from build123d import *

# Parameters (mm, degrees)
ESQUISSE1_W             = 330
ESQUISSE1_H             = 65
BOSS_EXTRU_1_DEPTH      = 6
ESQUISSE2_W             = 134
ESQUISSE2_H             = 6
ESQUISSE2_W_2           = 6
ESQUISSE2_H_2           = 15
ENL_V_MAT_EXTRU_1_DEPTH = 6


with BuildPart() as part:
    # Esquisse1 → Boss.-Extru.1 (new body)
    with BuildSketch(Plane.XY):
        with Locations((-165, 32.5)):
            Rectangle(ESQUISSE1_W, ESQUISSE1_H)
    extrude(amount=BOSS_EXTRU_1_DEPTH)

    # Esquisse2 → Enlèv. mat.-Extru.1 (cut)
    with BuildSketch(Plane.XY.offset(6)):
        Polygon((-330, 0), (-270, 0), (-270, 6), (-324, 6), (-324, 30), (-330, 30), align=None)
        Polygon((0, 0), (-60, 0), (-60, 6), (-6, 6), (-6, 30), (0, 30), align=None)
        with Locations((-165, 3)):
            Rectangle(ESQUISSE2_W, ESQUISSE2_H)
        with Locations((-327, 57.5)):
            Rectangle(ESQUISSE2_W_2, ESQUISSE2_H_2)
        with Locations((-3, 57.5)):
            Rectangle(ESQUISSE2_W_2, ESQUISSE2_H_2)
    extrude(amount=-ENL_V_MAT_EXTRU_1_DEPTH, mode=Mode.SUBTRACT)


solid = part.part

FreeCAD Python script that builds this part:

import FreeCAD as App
import Part
import Sketcher
from FreeCAD import Vector
Q = App.Units.Quantity

doc = App.newDocument("Part")
params = doc.addObject("Spreadsheet::Sheet", "Params")
for row, (alias, value) in enumerate([
    ("sketch1_width", "330 mm"),
    ("sketch1_height", "65 mm"),
    ("pad1_length", "6 mm"),
    ("sketch2_width", "60 mm"),
    ("sketch2_width2", "54 mm"),
    ("sketch2_width3", "134 mm"),
    ("sketch2_height", "24 mm"),
    ("sketch2_height2", "15 mm"),
    ("pocket1_length", "6 mm"),
], start=1):
    params.set(f"A{row}", alias)
    params.set(f"B{row}", "=" + value)
    params.setAlias(f"B{row}", alias)

body = doc.addObject("PartDesign::Body", "Body")

sketch1 = body.newObject("Sketcher::SketchObject", "Sketch")
sketch1.AttachmentSupport = (doc.getObject("XY_Plane"), [""])
sketch1.MapMode = "FlatFace"
sketch1.addGeometry(Part.LineSegment(Vector(-330, 65, 0), Vector(-330, 0, 0)), False)
sketch1.addGeometry(Part.LineSegment(Vector(-330, 0, 0), Vector(0, 0, 0)), False)
sketch1.addGeometry(Part.LineSegment(Vector(0, 0, 0), Vector(0, 65, 0)), False)
sketch1.addGeometry(Part.LineSegment(Vector(0, 65, 0), Vector(-330, 65, 0)), False)
sketch1.addConstraint(Sketcher.Constraint("Coincident", 0, 2, 1, 1))
sketch1.addConstraint(Sketcher.Constraint("Coincident", 1, 2, 2, 1))
sketch1.addConstraint(Sketcher.Constraint("Coincident", 2, 2, 3, 1))
sketch1.addConstraint(Sketcher.Constraint("Coincident", 3, 2, 0, 1))
sketch1.addConstraint(Sketcher.Constraint("Vertical", 0))
sketch1.addConstraint(Sketcher.Constraint("Horizontal", 1))
sketch1.addConstraint(Sketcher.Constraint("Vertical", 2))
sketch1.addConstraint(Sketcher.Constraint("Horizontal", 3))
sketch1.addConstraint(Sketcher.Constraint("Coincident", 1, 2, -1, 1))
sketch1.addConstraint(Sketcher.Constraint("DistanceX", 1, 1, 1, 2, Q("330 mm")))
sketch1.addConstraint(Sketcher.Constraint("DistanceY", 0, 2, 0, 1, Q("65 mm")))
sketch1.setExpression("Constraints[9]", "Params.sketch1_width")
sketch1.setExpression("Constraints[10]", "Params.sketch1_height")
pad1 = body.newObject("PartDesign::Pad", "Pad")
pad1.Profile = sketch1
pad1.setExpression("Length", "Params.pad1_length")

sketch2 = body.newObject("Sketcher::SketchObject", "Sketch001")
sketch2.AttachmentSupport = (doc.getObject("XY_Plane"), [""])
sketch2.MapMode = "FlatFace"
sketch2.AttachmentOffset = App.Placement(Vector(0, 0, 6), App.Rotation())
sketch2.addGeometry(Part.LineSegment(Vector(-330, 0, 0), Vector(-270, 0, 0)), False)
sketch2.addGeometry(Part.LineSegment(Vector(-270, 0, 0), Vector(-270, 6, 0)), False)
sketch2.addGeometry(Part.LineSegment(Vector(-270, 6, 0), Vector(-324, 6, 0)), False)
sketch2.addGeometry(Part.LineSegment(Vector(-324, 6, 0), Vector(-324, 30, 0)), False)
sketch2.addGeometry(Part.LineSegment(Vector(-324, 30, 0), Vector(-330, 30, 0)), False)
sketch2.addGeometry(Part.LineSegment(Vector(-330, 30, 0), Vector(-330, 0, 0)), False)
sketch2.addGeometry(Part.LineSegment(Vector(-60, 0, 0), Vector(0, 0, 0)), False)
sketch2.addGeometry(Part.LineSegment(Vector(0, 0, 0), Vector(0, 30, 0)), False)
sketch2.addGeometry(Part.LineSegment(Vector(0, 30, 0), Vector(-6, 30, 0)), False)
sketch2.addGeometry(Part.LineSegment(Vector(-6, 30, 0), Vector(-6, 6, 0)), False)
sketch2.addGeometry(Part.LineSegment(Vector(-6, 6, 0), Vector(-60, 6, 0)), False)
sketch2.addGeometry(Part.LineSegment(Vector(-60, 6, 0), Vector(-60, 0, 0)), False)
sketch2.addGeometry(Part.LineSegment(Vector(-232, 6, 0), Vector(-232, 0, 0)), False)
sketch2.addGeometry(Part.LineSegment(Vector(-232, 0, 0), Vector(-98, 0, 0)), False)
sketch2.addGeometry(Part.LineSegment(Vector(-98, 0, 0), Vector(-98, 6, 0)), False)
sketch2.addGeometry(Part.LineSegment(Vector(-98, 6, 0), Vector(-232, 6, 0)), False)
sketch2.addGeometry(Part.LineSegment(Vector(-330, 65, 0), Vector(-330, 50, 0)), False)
sketch2.addGeometry(Part.LineSegment(Vector(-330, 50, 0), Vector(-324, 50, 0)), False)
sketch2.addGeometry(Part.LineSegment(Vector(-324, 50, 0), Vector(-324, 65, 0)), False)
sketch2.addGeometry(Part.LineSegment(Vector(-324, 65, 0), Vector(-330, 65, 0)), False)
sketch2.addGeometry(Part.LineSegment(Vector(-6, 65, 0), Vector(-6, 50, 0)), False)
sketch2.addGeometry(Part.LineSegment(Vector(-6, 50, 0), Vector(0, 50, 0)), False)
sketch2.addGeometry(Part.LineSegment(Vector(0, 50, 0), Vector(0, 65, 0)), False)
sketch2.addGeometry(Part.LineSegment(Vector(0, 65, 0), Vector(-6, 65, 0)), False)
sketch2.addConstraint(Sketcher.Constraint("Coincident", 0, 2, 1, 1))
sketch2.addConstraint(Sketcher.Constraint("Coincident", 1, 2, 2, 1))
sketch2.addConstraint(Sketcher.Constraint("Coincident", 2, 2, 3, 1))
sketch2.addConstraint(Sketcher.Constraint("Coincident", 3, 2, 4, 1))
sketch2.addConstraint(Sketcher.Constraint("Coincident", 4, 2, 5, 1))
sketch2.addConstraint(Sketcher.Constraint("Coincident", 5, 2, 0, 1))
sketch2.addConstraint(Sketcher.Constraint("Coincident", 6, 2, 7, 1))
sketch2.addConstraint(Sketcher.Constraint("Coincident", 7, 2, 8, 1))
sketch2.addConstraint(Sketcher.Constraint("Coincident", 8, 2, 9, 1))
sketch2.addConstraint(Sketcher.Constraint("Coincident", 9, 2, 10, 1))
sketch2.addConstraint(Sketcher.Constraint("Coincident", 10, 2, 11, 1))
sketch2.addConstraint(Sketcher.Constraint("Coincident", 11, 2, 6, 1))
sketch2.addConstraint(Sketcher.Constraint("Coincident", 12, 2, 13, 1))
sketch2.addConstraint(Sketcher.Constraint("Coincident", 13, 2, 14, 1))
sketch2.addConstraint(Sketcher.Constraint("Coincident", 14, 2, 15, 1))
sketch2.addConstraint(Sketcher.Constraint("Coincident", 15, 2, 12, 1))
sketch2.addConstraint(Sketcher.Constraint("Coincident", 16, 2, 17, 1))
sketch2.addConstraint(Sketcher.Constraint("Coincident", 17, 2, 18, 1))
sketch2.addConstraint(Sketcher.Constraint("Coincident", 18, 2, 19, 1))
sketch2.addConstraint(Sketcher.Constraint("Coincident", 19, 2, 16, 1))
sketch2.addConstraint(Sketcher.Constraint("Coincident", 20, 2, 21, 1))
sketch2.addConstraint(Sketcher.Constraint("Coincident", 21, 2, 22, 1))
sketch2.addConstraint(Sketcher.Constraint("Coincident", 22, 2, 23, 1))
sketch2.addConstraint(Sketcher.Constraint("Coincident", 23, 2, 20, 1))
sketch2.addConstraint(Sketcher.Constraint("Horizontal", 0))
sketch2.addConstraint(Sketcher.Constraint("Vertical", 1))
sketch2.addConstraint(Sketcher.Constraint("Horizontal", 2))
sketch2.addConstraint(Sketcher.Constraint("Vertical", 3))
sketch2.addConstraint(Sketcher.Constraint("Horizontal", 4))
sketch2.addConstraint(Sketcher.Constraint("Vertical", 5))
sketch2.addConstraint(Sketcher.Constraint("Horizontal", 6))
sketch2.addConstraint(Sketcher.Constraint("Vertical", 7))
sketch2.addConstraint(Sketcher.Constraint("Horizontal", 8))
sketch2.addConstraint(Sketcher.Constraint("Vertical", 9))
sketch2.addConstraint(Sketcher.Constraint("Horizontal", 10))
sketch2.addConstraint(Sketcher.Constraint("Vertical", 11))
sketch2.addConstraint(Sketcher.Constraint("Vertical", 12))
sketch2.addConstraint(Sketcher.Constraint("Horizontal", 13))
sketch2.addConstraint(Sketcher.Constraint("Vertical", 14))
sketch2.addConstraint(Sketcher.Constraint("Horizontal", 15))
sketch2.addConstraint(Sketcher.Constraint("Vertical", 16))
sketch2.addConstraint(Sketcher.Constraint("Horizontal", 17))
sketch2.addConstraint(Sketcher.Constraint("Vertical", 18))
sketch2.addConstraint(Sketcher.Constraint("Horizontal", 19))
sketch2.addConstraint(Sketcher.Constraint("Vertical", 20))
sketch2.addConstraint(Sketcher.Constraint("Horizontal", 21))
sketch2.addConstraint(Sketcher.Constraint("Vertical", 22))
sketch2.addConstraint(Sketcher.Constraint("Horizontal", 23))
sketch2.addConstraint(Sketcher.Constraint("Coincident", 6, 2, -1, 1))
sketch2.addConstraint(Sketcher.Constraint("PointOnObject", 0, 2, -1))
sketch2.addConstraint(Sketcher.Constraint("PointOnObject", 12, 2, -1))
sketch2.addConstraint(Sketcher.Constraint("PointOnObject", 21, 2, -2))
sketch2.addConstraint(Sketcher.Constraint("Horizontal", 4, 2, 7, 2))
sketch2.addConstraint(Sketcher.Constraint("Horizontal", 2, 2, 9, 2))
sketch2.addConstraint(Sketcher.Constraint("Horizontal", 10, 2, 14, 2))
sketch2.addConstraint(Sketcher.Constraint("Horizontal", 17, 2, 20, 2))
sketch2.addConstraint(Sketcher.Constraint("Horizontal", 19, 2, 22, 2))
sketch2.addConstraint(Sketcher.Constraint("Vertical", 5, 2, 16, 2))
sketch2.addConstraint(Sketcher.Constraint("Vertical", 3, 2, 17, 2))
sketch2.addConstraint(Sketcher.Constraint("Vertical", 9, 2, 20, 2))
sketch2.addConstraint(Sketcher.Constraint("Equal", 0, 6))
sketch2.addConstraint(Sketcher.Constraint("Equal", 4, 8))
sketch2.addConstraint(Sketcher.Constraint("Equal", 23, 1))
sketch2.addConstraint(Sketcher.Constraint("DistanceX", 0, 1, 0, 2, Q("60 mm")))
sketch2.addConstraint(Sketcher.Constraint("DistanceX", 2, 2, 2, 1, Q("54 mm")))
sketch2.addConstraint(Sketcher.Constraint("DistanceX", 13, 1, 13, 2, Q("134 mm")))
sketch2.addConstraint(Sketcher.Constraint("DistanceY", 3, 1, 3, 2, Q("24 mm")))
sketch2.addConstraint(Sketcher.Constraint("DistanceY", 16, 2, 16, 1, Q("15 mm")))
sketch2.addConstraint(Sketcher.Constraint("DistanceX", 0, 2, -1, 1, Q("270 mm")))
sketch2.addConstraint(Sketcher.Constraint("DistanceX", 12, 2, -1, 1, Q("232 mm")))
sketch2.addConstraint(Sketcher.Constraint("DistanceY", -1, 1, 16, 2, Q("50 mm")))
sketch2.setExpression("Constraints[63]", "Params.sketch2_width")
sketch2.setExpression("Constraints[64]", "Params.sketch2_width2")
sketch2.setExpression("Constraints[65]", "Params.sketch2_width3")
sketch2.setExpression("Constraints[66]", "Params.sketch2_height")
sketch2.setExpression("Constraints[67]", "Params.sketch2_height2")
pocket1 = body.newObject("PartDesign::Pocket", "Pocket")
pocket1.Profile = sketch2
pocket1.setExpression("Length", "Params.pocket1_length")

doc.recompute()
